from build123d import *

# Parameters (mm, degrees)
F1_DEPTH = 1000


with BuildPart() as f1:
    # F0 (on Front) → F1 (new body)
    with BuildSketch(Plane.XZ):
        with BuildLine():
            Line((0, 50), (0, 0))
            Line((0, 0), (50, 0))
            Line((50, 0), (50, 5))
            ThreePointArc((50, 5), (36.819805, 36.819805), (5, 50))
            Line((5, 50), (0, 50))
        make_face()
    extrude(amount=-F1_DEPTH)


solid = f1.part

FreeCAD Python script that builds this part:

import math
import FreeCAD as App
import Part
import Sketcher
Q = App.Units.Quantity

doc = App.newDocument("Part")
body = doc.addObject("PartDesign::Body", "Body")

sketch1 = body.newObject("Sketcher::SketchObject", "Sketch")
sketch1.AttachmentSupport = (doc.getObject("XZ_Plane"), [""])
sketch1.MapMode = "FlatFace"
sketch1.addGeometry([
    Part.LineSegment(App.Vector(0, 50, 0), App.Vector(0, 0, 0)),
    Part.LineSegment(App.Vector(0, 0, 0), App.Vector(50, 0, 0)),
    Part.LineSegment(App.Vector(50, 0, 0), App.Vector(50, 5, 0)),
    Part.ArcOfCircle(Part.Circle(App.Vector(5, 5, 0), App.Vector(0, 0, 1), 45), math.radians(0), math.radians(90)),
    Part.LineSegment(App.Vector(5, 50, 0), App.Vector(0, 50, 0)),
], False)
sketch1.addConstraint([
    Sketcher.Constraint("Coincident", 0, 2, 1, 1),
    Sketcher.Constraint("Coincident", 1, 2, 2, 1),
    Sketcher.Constraint("Tangent", 2, 2, 3, 1),
    Sketcher.Constraint("Tangent", 3, 2, 4, 1),
    Sketcher.Constraint("Coincident", 4, 2, 0, 1),
    Sketcher.Constraint("Vertical", 0),
    Sketcher.Constraint("Horizontal", 1),
    Sketcher.Constraint("Vertical", 2),
    Sketcher.Constraint("Horizontal", 4),
    Sketcher.Constraint("Coincident", 0, 2, -1, 1),
    Sketcher.Constraint("Equal", 1, 0),
    Sketcher.Constraint("Radius", 3, Q("45.000001 mm")),
    Sketcher.Constraint("DistanceX", 1, 1, 1, 2, Q("50 mm")),
])
pad1 = body.newObject("PartDesign::Pad", "Pad")
pad1.Profile = sketch1
pad1.Length = 1000
pad1.Reversed = True

doc.recompute()
